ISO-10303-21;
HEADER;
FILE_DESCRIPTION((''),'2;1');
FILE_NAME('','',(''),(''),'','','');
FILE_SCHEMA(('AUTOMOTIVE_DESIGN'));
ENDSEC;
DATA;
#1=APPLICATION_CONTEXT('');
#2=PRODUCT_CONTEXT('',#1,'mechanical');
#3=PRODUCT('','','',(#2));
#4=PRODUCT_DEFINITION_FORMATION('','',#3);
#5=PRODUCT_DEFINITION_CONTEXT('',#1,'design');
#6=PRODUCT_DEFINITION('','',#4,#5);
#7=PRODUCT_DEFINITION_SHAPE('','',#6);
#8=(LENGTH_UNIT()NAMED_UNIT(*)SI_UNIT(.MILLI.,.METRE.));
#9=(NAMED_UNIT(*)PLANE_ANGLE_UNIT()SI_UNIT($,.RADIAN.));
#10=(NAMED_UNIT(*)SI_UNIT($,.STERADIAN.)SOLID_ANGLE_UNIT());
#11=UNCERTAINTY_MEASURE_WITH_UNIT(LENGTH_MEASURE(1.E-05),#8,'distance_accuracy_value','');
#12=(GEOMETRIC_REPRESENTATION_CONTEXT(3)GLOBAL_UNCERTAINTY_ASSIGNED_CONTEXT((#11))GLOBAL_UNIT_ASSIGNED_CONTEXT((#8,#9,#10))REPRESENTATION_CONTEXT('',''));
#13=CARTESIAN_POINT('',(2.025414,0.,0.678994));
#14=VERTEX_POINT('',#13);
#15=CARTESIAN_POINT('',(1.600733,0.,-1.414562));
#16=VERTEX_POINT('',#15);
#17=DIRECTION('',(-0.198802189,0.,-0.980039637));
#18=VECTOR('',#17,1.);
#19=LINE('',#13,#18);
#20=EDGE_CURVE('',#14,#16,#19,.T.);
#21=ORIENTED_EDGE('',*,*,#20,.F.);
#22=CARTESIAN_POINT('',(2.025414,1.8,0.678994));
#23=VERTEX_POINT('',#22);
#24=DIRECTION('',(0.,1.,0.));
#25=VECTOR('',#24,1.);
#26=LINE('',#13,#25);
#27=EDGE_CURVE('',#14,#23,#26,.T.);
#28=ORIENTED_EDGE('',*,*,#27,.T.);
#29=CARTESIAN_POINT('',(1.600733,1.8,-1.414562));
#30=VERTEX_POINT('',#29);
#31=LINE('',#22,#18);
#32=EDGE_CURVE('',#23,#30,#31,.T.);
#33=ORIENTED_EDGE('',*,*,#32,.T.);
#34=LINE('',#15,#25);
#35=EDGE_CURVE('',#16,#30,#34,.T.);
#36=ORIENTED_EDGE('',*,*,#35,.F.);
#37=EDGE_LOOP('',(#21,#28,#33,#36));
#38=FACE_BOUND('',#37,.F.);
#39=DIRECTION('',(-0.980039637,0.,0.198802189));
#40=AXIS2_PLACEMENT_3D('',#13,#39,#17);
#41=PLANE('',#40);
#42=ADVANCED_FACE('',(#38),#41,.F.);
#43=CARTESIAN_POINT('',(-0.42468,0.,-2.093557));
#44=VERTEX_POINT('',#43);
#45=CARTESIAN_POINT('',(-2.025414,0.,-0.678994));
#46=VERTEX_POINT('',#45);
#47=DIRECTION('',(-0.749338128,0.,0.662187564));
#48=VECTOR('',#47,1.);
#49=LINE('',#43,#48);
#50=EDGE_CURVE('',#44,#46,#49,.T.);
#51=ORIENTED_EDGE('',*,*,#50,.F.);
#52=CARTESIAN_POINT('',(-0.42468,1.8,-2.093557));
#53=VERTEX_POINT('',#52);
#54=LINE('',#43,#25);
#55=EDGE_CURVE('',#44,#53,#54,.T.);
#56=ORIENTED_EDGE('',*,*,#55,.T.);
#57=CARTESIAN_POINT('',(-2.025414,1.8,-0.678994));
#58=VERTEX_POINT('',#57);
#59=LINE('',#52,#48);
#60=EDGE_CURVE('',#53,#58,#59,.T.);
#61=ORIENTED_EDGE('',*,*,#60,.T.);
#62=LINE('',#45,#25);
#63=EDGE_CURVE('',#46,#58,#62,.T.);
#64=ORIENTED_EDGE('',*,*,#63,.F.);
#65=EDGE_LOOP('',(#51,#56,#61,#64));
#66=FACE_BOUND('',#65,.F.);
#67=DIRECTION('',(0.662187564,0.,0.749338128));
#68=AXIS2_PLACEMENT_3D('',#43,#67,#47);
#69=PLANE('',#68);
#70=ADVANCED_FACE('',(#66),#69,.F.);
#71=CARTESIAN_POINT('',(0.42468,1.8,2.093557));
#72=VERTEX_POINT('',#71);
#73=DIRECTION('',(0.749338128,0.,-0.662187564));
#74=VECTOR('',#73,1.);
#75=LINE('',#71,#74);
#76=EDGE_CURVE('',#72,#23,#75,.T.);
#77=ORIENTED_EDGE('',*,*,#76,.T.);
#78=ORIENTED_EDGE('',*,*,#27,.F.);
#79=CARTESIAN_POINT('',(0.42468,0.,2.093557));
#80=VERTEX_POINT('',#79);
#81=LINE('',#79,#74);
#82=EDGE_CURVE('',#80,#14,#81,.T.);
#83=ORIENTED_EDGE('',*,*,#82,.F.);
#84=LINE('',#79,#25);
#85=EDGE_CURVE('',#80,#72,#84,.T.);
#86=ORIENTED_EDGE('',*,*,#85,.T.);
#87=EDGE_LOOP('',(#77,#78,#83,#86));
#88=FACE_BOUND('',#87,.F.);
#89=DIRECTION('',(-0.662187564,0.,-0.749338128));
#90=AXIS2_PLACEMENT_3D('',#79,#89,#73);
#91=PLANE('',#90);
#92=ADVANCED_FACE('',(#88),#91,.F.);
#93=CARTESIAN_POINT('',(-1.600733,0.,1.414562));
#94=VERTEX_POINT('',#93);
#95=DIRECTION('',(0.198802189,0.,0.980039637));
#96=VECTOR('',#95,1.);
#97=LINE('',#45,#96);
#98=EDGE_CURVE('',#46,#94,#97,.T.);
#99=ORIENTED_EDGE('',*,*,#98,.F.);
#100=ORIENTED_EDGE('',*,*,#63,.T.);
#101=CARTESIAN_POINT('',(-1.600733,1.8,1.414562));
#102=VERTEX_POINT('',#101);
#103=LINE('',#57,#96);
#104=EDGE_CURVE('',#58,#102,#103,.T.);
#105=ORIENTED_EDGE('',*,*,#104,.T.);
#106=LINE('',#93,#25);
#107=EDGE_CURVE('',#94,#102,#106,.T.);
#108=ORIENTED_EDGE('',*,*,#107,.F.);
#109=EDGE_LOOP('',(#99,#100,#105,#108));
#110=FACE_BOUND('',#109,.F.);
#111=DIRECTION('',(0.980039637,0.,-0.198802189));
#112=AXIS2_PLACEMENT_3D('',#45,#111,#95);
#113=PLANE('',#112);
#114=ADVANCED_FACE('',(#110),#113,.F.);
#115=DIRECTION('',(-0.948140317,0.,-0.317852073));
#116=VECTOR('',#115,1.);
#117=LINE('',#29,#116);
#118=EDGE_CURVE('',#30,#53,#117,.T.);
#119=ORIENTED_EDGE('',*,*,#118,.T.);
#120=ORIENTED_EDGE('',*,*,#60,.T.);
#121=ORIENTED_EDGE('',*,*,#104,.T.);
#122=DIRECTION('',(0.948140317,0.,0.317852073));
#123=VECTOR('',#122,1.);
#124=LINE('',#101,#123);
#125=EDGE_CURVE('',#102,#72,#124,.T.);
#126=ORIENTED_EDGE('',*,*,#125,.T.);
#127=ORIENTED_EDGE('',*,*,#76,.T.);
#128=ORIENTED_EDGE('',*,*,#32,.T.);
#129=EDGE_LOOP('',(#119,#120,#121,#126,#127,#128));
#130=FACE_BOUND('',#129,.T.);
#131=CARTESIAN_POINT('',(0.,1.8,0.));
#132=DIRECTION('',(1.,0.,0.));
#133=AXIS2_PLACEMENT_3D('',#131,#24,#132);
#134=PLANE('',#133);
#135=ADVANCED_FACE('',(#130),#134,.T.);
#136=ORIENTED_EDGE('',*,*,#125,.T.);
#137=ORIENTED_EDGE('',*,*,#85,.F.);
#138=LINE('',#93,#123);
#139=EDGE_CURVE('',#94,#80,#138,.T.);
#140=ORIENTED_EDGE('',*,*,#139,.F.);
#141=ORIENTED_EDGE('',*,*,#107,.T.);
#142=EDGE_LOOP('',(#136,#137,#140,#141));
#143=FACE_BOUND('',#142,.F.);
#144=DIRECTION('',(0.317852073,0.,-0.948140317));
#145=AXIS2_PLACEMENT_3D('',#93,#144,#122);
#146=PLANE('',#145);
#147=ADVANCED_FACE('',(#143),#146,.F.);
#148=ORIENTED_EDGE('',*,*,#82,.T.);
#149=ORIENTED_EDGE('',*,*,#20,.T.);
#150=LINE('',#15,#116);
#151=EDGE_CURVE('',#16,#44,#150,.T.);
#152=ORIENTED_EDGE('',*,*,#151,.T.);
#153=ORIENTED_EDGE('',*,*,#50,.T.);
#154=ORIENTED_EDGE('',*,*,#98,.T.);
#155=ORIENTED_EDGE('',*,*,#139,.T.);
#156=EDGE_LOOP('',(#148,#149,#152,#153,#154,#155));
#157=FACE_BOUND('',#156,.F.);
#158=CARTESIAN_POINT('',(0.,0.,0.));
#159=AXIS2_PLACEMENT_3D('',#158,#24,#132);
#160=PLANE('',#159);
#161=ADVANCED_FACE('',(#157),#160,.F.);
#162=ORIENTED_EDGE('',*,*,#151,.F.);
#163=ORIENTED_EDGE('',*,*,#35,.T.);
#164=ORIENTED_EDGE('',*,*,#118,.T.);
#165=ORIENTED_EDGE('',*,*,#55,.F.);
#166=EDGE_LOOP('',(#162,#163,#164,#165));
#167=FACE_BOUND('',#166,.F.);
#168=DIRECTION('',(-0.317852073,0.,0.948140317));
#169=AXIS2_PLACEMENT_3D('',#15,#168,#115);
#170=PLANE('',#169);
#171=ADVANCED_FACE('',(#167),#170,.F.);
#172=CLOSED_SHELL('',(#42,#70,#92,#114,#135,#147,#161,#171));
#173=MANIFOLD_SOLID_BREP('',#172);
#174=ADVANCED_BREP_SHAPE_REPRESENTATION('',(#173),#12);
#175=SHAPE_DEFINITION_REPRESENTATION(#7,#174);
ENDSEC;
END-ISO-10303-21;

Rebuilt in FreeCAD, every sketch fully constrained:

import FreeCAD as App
import Part
import Sketcher

V = App.Vector
Q = App.Units.Quantity


def add_polygon(sketch, points):
    """Adds a closed chain of lines whose ends are joined by coincident constraints."""
    first, n = sketch.GeometryCount, len(points)
    for a, b in zip(points, points[1:] + points[:1]):
        sketch.addGeometry(Part.LineSegment(App.Vector(*a, 0), App.Vector(*b, 0)), False)
    for i in range(n):
        sketch.addConstraint(Sketcher.Constraint("Coincident", first + i, 2, first + (i + 1) % n, 1))

doc = App.newDocument("Part")
body = doc.addObject("PartDesign::Body", "Body")

# Sketch on XZ plane
sketch1 = doc.addObject("Sketcher::SketchObject", "Sketch")
body.addObject(sketch1)
sketch1.AttachmentSupport = (doc.XZ_Plane, [""])
sketch1.MapMode = "FlatFace"
add_polygon(sketch1, [(1.6, -1.4), (-0.4, -2.1), (-2, -0.7), (-1.6, 1.4), (0.4, 2.1), (2, 0.7)])  # lines 0-5
sketch1.addConstraint([
    Sketcher.Constraint("Symmetric", 0, 2, 3, 2, -1, 1),
    Sketcher.Constraint("Symmetric", 1, 2, 4, 2, -1, 1),
    Sketcher.Constraint("Symmetric", 2, 2, 5, 2, -1, 1),
    Sketcher.Constraint("Equal", 0, 1),
    Sketcher.Constraint("Equal", 1, 2),
    Sketcher.Constraint("DistanceX", 0, 2, -1, 1, Q("0.42468 mm")),
    Sketcher.Constraint("DistanceX", 1, 2, 2, 2, Q("0.42468 mm")),
    Sketcher.Constraint("DistanceY", 0, 2, 2, 2, Q("3.508119 mm")),
    Sketcher.Constraint("DistanceY", 1, 2, 3, 2, Q("2.772551 mm")),
])
pad1 = doc.addObject("PartDesign::Pad", "Pad")
body.addObject(pad1)
pad1.Profile = sketch1
pad1.Length = 1.8
pad1.Reversed = True

doc.recompute()
